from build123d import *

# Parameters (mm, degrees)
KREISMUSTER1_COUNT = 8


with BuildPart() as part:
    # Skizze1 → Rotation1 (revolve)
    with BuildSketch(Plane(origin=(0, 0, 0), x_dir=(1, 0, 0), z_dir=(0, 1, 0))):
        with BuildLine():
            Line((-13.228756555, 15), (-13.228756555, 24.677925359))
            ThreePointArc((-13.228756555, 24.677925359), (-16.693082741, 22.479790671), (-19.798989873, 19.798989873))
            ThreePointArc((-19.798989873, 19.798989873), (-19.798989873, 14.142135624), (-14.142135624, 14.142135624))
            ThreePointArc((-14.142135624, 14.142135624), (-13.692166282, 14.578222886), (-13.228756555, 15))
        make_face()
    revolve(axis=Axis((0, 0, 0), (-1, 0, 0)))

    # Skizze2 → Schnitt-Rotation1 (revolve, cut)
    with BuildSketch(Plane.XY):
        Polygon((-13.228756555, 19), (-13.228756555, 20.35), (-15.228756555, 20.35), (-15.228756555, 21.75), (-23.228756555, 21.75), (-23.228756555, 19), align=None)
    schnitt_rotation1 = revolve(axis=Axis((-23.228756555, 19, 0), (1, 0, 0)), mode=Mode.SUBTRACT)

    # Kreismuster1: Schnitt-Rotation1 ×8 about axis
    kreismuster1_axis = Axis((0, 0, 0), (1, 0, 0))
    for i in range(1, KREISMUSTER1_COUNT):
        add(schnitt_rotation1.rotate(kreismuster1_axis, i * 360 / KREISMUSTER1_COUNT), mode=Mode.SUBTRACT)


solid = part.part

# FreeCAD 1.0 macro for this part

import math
import FreeCAD as App
import Part
import Sketcher
from FreeCAD import Vector

doc = App.newDocument("Part")
body = doc.addObject("PartDesign::Body", "Body")

sketch1 = body.newObject("Sketcher::SketchObject", "Sketch")
sketch1.AttachmentSupport = (doc.getObject("XZ_Plane"), [""])
sketch1.MapMode = "FlatFace"
sketch1.addGeometry([
    Part.LineSegment(Vector(-13.228757, -15, 0), Vector(-13.228757, -24.677925, 0)),
    Part.ArcOfCircle(Part.Circle(Vector(0, 0, 0), Vector(0, 0, 1), 28), math.radians(-135), math.radians(-118.193813)),
    Part.ArcOfCircle(Part.Circle(Vector(-16.970563, -16.970563, 0), Vector(0, 0, 1), 4), math.radians(45), math.radians(225)),
    Part.ArcOfCircle(Part.Circle(Vector(0, 0, 0), Vector(0, 0, 1), 20), math.radians(-135), math.radians(-131.409622)),
], False)
sketch1.addConstraint([
    Sketcher.Constraint("Coincident", 0, 2, 1, 2),
    Sketcher.Constraint("Tangent", 1, 1, 2, 2),
    Sketcher.Constraint("Tangent", 2, 1, 3, 1),
    Sketcher.Constraint("Coincident", 3, 2, 0, 1),
    Sketcher.Constraint("Vertical", 0),
    Sketcher.Constraint("Coincident", 1, 3, -1, 1),
    Sketcher.Constraint("Coincident", 3, 3, -1, 1),
    Sketcher.Constraint("Radius", 1, 28.0),
    Sketcher.Constraint("Radius", 2, 4.0),
    Sketcher.Constraint("DistanceY", 3, 2, -1, 1, 15.0),
    Sketcher.Constraint("DistanceX", 1, 1, -1, 1, 19.79899),
])
revolution = body.newObject("PartDesign::Revolution", "Revolution")
revolution.Profile = sketch1
revolution.ReferenceAxis = (sketch1, ["H_Axis"])
revolution.Angle = 360

sketch2 = body.newObject("Sketcher::SketchObject", "Sketch001")
sketch2.AttachmentSupport = (doc.getObject("XY_Plane"), [""])
sketch2.MapMode = "FlatFace"
sketch2.addGeometry([
    Part.LineSegment(Vector(-13.228757, 19, 0), Vector(-13.228757, 20.35, 0)),
    Part.LineSegment(Vector(-13.228757, 20.35, 0), Vector(-15.228757, 20.35, 0)),
    Part.LineSegment(Vector(-15.228757, 20.35, 0), Vector(-15.228757, 21.75, 0)),
    Part.LineSegment(Vector(-15.228757, 21.75, 0), Vector(-23.228757, 21.75, 0)),
    Part.LineSegment(Vector(-23.228757, 21.75, 0), Vector(-23.228757, 19, 0)),
    Part.LineSegment(Vector(-23.228757, 19, 0), Vector(-13.228757, 19, 0)),
], False)
sketch2.addGeometry(Part.LineSegment(Vector(-23.228757, 19, 0), Vector(-13.228757, 19, 0)), True)
sketch2.addConstraint([
    Sketcher.Constraint("Coincident", 0, 2, 1, 1),
    Sketcher.Constraint("Coincident", 1, 2, 2, 1),
    Sketcher.Constraint("Coincident", 2, 2, 3, 1),
    Sketcher.Constraint("Coincident", 3, 2, 4, 1),
    Sketcher.Constraint("Coincident", 4, 2, 5, 1),
    Sketcher.Constraint("Coincident", 5, 2, 0, 1),
    Sketcher.Constraint("Vertical", 0),
    Sketcher.Constraint("Horizontal", 1),
    Sketcher.Constraint("Vertical", 2),
    Sketcher.Constraint("Horizontal", 3),
    Sketcher.Constraint("Vertical", 4),
    Sketcher.Constraint("Horizontal", 5),
    Sketcher.Constraint("Horizontal", 6),
    Sketcher.Constraint("Coincident", 6, 1, 4, 2),
    Sketcher.Constraint("Vertical", 0, 2, 6, 2),
    Sketcher.Constraint("DistanceX", 1, 2, 1, 1, 2.0),
    Sketcher.Constraint("DistanceX", 3, 2, 3, 1, 8.0),
    Sketcher.Constraint("DistanceY", 2, 1, 2, 2, 1.4),
    Sketcher.Constraint("DistanceY", -1, 1, 4, 2, 19.0),
    Sketcher.Constraint("DistanceY", 0, 1, 0, 2, 1.35),
    Sketcher.Constraint("DistanceX", 0, 2, -1, 1, 13.228757),
])
groove = body.newObject("PartDesign::Groove", "Groove")
groove.Profile = sketch2
groove.ReferenceAxis = (sketch2, ["Axis0"])
groove.Angle = 360
doc.recompute()

polarpattern = body.newObject("PartDesign::PolarPattern", "PolarPattern")
polarpattern.Originals = [groove]
polarpattern.Axis = (doc.getObject("X_Axis"), [""])
polarpattern.Angle = 360
polarpattern.Occurrences = 8
body.Tip = polarpattern

doc.recompute()
